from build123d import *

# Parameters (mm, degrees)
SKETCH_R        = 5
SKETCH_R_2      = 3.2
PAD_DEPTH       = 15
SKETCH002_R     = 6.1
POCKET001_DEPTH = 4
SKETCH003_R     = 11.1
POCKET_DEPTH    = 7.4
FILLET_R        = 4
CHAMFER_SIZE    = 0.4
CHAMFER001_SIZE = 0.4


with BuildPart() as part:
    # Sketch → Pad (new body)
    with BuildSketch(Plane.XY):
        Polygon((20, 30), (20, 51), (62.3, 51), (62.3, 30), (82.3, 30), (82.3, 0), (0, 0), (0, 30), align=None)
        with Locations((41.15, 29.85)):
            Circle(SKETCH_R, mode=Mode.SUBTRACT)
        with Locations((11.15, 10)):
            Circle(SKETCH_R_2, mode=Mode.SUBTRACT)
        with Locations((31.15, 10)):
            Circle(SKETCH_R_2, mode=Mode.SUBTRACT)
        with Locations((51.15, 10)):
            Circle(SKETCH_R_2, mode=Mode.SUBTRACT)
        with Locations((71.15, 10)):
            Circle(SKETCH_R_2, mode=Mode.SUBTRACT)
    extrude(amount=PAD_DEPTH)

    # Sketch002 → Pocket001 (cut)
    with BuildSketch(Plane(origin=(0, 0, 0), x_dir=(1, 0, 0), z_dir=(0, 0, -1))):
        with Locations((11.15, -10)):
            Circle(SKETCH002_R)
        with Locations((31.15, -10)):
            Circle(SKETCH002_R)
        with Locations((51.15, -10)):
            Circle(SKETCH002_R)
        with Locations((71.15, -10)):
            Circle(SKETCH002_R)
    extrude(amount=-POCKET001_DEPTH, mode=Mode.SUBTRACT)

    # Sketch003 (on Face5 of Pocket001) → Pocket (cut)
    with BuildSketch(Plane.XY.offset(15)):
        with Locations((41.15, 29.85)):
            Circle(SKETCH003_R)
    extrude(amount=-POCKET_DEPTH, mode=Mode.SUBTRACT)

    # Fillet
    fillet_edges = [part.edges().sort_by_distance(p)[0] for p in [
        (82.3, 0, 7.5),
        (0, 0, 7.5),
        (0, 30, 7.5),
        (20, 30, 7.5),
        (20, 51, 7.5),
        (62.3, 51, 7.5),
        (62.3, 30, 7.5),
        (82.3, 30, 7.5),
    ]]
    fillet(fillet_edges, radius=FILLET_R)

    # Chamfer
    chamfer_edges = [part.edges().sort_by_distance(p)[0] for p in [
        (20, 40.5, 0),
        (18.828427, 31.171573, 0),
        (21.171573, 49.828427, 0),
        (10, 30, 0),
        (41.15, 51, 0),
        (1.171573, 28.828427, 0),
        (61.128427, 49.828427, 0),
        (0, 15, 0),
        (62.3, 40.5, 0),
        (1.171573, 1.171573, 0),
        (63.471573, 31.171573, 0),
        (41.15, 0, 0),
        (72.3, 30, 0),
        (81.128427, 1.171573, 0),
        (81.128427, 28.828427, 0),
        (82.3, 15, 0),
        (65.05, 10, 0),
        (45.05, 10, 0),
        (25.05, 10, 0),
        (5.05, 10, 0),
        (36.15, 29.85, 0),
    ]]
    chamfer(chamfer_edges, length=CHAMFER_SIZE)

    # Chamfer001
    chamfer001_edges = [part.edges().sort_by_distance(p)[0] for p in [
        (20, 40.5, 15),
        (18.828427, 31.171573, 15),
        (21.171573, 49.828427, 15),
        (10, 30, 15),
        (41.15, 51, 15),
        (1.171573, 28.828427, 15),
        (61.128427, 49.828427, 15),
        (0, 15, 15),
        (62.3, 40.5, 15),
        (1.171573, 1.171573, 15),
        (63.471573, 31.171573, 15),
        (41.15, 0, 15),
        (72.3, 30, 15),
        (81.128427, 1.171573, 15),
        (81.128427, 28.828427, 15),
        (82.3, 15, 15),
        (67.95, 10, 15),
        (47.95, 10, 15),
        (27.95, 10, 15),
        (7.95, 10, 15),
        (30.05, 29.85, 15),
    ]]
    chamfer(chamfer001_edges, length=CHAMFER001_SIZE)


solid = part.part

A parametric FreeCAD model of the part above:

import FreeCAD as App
import Part
import Sketcher
from FreeCAD import Vector


def edges_at(feature, points):
    """Names of the edges that pass closest to the given points."""
    edges = feature.Shape.Edges
    near = lambda p: min(range(len(edges)), key=lambda i: edges[i].distToShape(Part.Vertex(*p))[0])
    return sorted({f"Edge{near(p) + 1}" for p in points})


def add_polygon(sketch, points):
    """Adds a closed chain of lines whose ends are joined by coincident constraints."""
    first, n = sketch.GeometryCount, len(points)
    for a, b in zip(points, points[1:] + points[:1]):
        sketch.addGeometry(Part.LineSegment(App.Vector(*a, 0), App.Vector(*b, 0)), False)
    for i in range(n):
        sketch.addConstraint(Sketcher.Constraint("Coincident", first + i, 2, first + (i + 1) % n, 1))

doc = App.newDocument("Part")
body = doc.addObject("PartDesign::Body", "Body")

sketch1 = body.newObject("Sketcher::SketchObject", "Sketch")
sketch1.AttachmentSupport = (doc.getObject("XY_Plane"), [""])
sketch1.MapMode = "FlatFace"
add_polygon(sketch1, [(20, 51), (20, 30), (0, 30), (0, 0), (82.3, 0), (82.3, 30), (62.3, 30), (62.3, 51)])
sketch1.addGeometry(Part.Circle(Vector(71.2, 10, 0), Vector(0, 0, 1), 3.2), False)
sketch1.addGeometry(Part.Circle(Vector(51.1, 10, 0), Vector(0, 0, 1), 3.2), False)
sketch1.addGeometry(Part.Circle(Vector(31.1, 10, 0), Vector(0, 0, 1), 3.2), False)
sketch1.addGeometry(Part.Circle(Vector(11.2, 10, 0), Vector(0, 0, 1), 3.2), False)
sketch1.addGeometry(Part.Circle(Vector(41.1, 29.9, 0), Vector(0, 0, 1), 5), False)
sketch1.addConstraint([
    Sketcher.Constraint("Vertical", 0),
    Sketcher.Constraint("Horizontal", 1),
    Sketcher.Constraint("Vertical", 2),
    Sketcher.Constraint("Horizontal", 3),
    Sketcher.Constraint("Vertical", 4),
    Sketcher.Constraint("Horizontal", 5),
    Sketcher.Constraint("Vertical", 6),
    Sketcher.Constraint("Horizontal", 7),
    Sketcher.Constraint("Coincident", 2, 2, -1, 1),
    Sketcher.Constraint("Equal", 8, 9),
    Sketcher.Constraint("Equal", 9, 10),
    Sketcher.Constraint("Equal", 10, 11),
    Sketcher.Constraint("Horizontal", 8, 3, 9, 3),
    Sketcher.Constraint("Horizontal", 9, 3, 10, 3),
    Sketcher.Constraint("Horizontal", 10, 3, 11, 3),
    Sketcher.Constraint("Horizontal", 1, 2, 4, 2),
    Sketcher.Constraint("Equal", 1, 5),
    Sketcher.Constraint("Diameter", 12, 10.0),
    Sketcher.Constraint("Diameter", 8, 6.4),
    Sketcher.Constraint("DistanceX", 1, 2, 1, 1, 20.0),
    Sketcher.Constraint("DistanceY", 0, 2, 0, 1, 21.0),
    Sketcher.Constraint("DistanceY", 2, 2, 2, 1, 30.0),
    Sketcher.Constraint("DistanceX", 3, 1, 3, 2, 82.3),
    Sketcher.Constraint("DistanceY", -1, 1, 8, 3, 10.0),
    Sketcher.Constraint("DistanceX", 9, 3, 8, 3, 20.0),
    Sketcher.Constraint("DistanceX", 10, 3, 9, 3, 20.0),
    Sketcher.Constraint("DistanceX", 11, 3, 10, 3, 20.0),
    Sketcher.Constraint("DistanceX", 12, 3, 9, 3, 10.0),
    Sketcher.Constraint("DistanceX", -1, 1, 8, 3, 71.15),
    Sketcher.Constraint("DistanceY", -1, 1, 12, 3, 29.85),
])
pad1 = body.newObject("PartDesign::Pad", "Pad")
pad1.Profile = sketch1
pad1.Length = 15

sketch2 = body.newObject("Sketcher::SketchObject", "Sketch001")
sketch2.AttachmentSupport = (doc.getObject("XY_Plane"), [""])
sketch2.MapMode = "FlatFace"
sketch2.addGeometry([
    Part.Circle(Vector(11, 10, 0), Vector(0, 0, 1), 6),
    Part.Circle(Vector(31, 10, 0), Vector(0, 0, 1), 6),
    Part.Circle(Vector(51, 10, 0), Vector(0, 0, 1), 6),
    Part.Circle(Vector(71, 10, 0), Vector(0, 0, 1), 6),
], False)
sketch2.addConstraint([
    Sketcher.Constraint("Equal", 0, 1),
    Sketcher.Constraint("Equal", 1, 2),
    Sketcher.Constraint("Equal", 2, 3),
    Sketcher.Constraint("Horizontal", 0, 3, 1, 3),
    Sketcher.Constraint("Horizontal", 1, 3, 2, 3),
    Sketcher.Constraint("Horizontal", 2, 3, 3, 3),
    Sketcher.Constraint("Diameter", 0, 12.2),
    Sketcher.Constraint("DistanceY", -1, 1, 0, 3, 10.0),
    Sketcher.Constraint("DistanceX", 0, 3, 1, 3, 20.0),
    Sketcher.Constraint("DistanceX", 1, 3, 2, 3, 20.0),
    Sketcher.Constraint("DistanceX", 2, 3, 3, 3, 20.0),
    Sketcher.Constraint("DistanceX", -1, 1, 0, 3, 11.15),
])
pocket1 = body.newObject("PartDesign::Pocket", "Pocket")
pocket1.Profile = sketch2
pocket1.Length = 4
pocket1.Reversed = True

sketch3 = body.newObject("Sketcher::SketchObject", "Sketch002")
sketch3.AttachmentSupport = (doc.getObject("XY_Plane"), [""])
sketch3.MapMode = "FlatFace"
sketch3.AttachmentOffset = App.Placement(Vector(0, 0, 15), App.Rotation())
sketch3.addGeometry(Part.Circle(Vector(41, 30, 0), Vector(0, 0, 1), 11), False)
sketch3.addConstraint([
    Sketcher.Constraint("Diameter", 0, 22.2),
    Sketcher.Constraint("DistanceX", -1, 1, 0, 3, 41.15),
    Sketcher.Constraint("DistanceY", -1, 1, 0, 3, 29.85),
])
pocket2 = body.newObject("PartDesign::Pocket", "Pocket001")
pocket2.Profile = sketch3
pocket2.Length = 7.4
doc.recompute()

fillet = body.newObject("PartDesign::Fillet", "Fillet")
fillet.Base = (pocket2, edges_at(pocket2, [
    (82.3, 0, 7.5),
    (0, 0, 7.5),
    (0, 30, 7.5),
    (20, 30, 7.5),
    (20, 51, 7.5),
    (62.3, 51, 7.5),
    (62.3, 30, 7.5),
    (82.3, 30, 7.5),
]))
fillet.Radius = 4
doc.recompute()

chamfer = body.newObject("PartDesign::Chamfer", "Chamfer")
chamfer.Base = (fillet, edges_at(fillet, [
    (20, 40.5, 0),
    (18.828, 31.172, 0),
    (21.172, 49.828, 0),
    (10, 30, 0),
    (41.15, 51, 0),
    (1.172, 28.828, 0),
    (61.128, 49.828, 0),
    (0, 15, 0),
    (62.3, 40.5, 0),
    (1.172, 1.172, 0),
    (63.472, 31.172, 0),
    (41.15, 0, 0),
    (72.3, 30, 0),
    (81.128, 1.172, 0),
    (81.128, 28.828, 0),
    (82.3, 15, 0),
    (65.05, 10, 0),
    (45.05, 10, 0),
    (25.05, 10, 0),
    (5.05, 10, 0),
    (36.15, 29.85, 0),
]))
chamfer.Size = 0.4
doc.recompute()

chamfer2 = body.newObject("PartDesign::Chamfer", "Chamfer001")
chamfer2.Base = (chamfer, edges_at(chamfer, [
    (20, 40.5, 15),
    (18.828, 31.172, 15),
    (21.172, 49.828, 15),
    (10, 30, 15),
    (41.15, 51, 15),
    (1.172, 28.828, 15),
    (61.128, 49.828, 15),
    (0, 15, 15),
    (62.3, 40.5, 15),
    (1.172, 1.172, 15),
    (63.472, 31.172, 15),
    (41.15, 0, 15),
    (72.3, 30, 15),
    (81.128, 1.172, 15),
    (81.128, 28.828, 15),
    (82.3, 15, 15),
    (67.95, 10, 15),
    (47.95, 10, 15),
    (27.95, 10, 15),
    (7.95, 10, 15),
    (30.05, 29.85, 15),
]))
chamfer2.Size = 0.4

doc.recompute()
